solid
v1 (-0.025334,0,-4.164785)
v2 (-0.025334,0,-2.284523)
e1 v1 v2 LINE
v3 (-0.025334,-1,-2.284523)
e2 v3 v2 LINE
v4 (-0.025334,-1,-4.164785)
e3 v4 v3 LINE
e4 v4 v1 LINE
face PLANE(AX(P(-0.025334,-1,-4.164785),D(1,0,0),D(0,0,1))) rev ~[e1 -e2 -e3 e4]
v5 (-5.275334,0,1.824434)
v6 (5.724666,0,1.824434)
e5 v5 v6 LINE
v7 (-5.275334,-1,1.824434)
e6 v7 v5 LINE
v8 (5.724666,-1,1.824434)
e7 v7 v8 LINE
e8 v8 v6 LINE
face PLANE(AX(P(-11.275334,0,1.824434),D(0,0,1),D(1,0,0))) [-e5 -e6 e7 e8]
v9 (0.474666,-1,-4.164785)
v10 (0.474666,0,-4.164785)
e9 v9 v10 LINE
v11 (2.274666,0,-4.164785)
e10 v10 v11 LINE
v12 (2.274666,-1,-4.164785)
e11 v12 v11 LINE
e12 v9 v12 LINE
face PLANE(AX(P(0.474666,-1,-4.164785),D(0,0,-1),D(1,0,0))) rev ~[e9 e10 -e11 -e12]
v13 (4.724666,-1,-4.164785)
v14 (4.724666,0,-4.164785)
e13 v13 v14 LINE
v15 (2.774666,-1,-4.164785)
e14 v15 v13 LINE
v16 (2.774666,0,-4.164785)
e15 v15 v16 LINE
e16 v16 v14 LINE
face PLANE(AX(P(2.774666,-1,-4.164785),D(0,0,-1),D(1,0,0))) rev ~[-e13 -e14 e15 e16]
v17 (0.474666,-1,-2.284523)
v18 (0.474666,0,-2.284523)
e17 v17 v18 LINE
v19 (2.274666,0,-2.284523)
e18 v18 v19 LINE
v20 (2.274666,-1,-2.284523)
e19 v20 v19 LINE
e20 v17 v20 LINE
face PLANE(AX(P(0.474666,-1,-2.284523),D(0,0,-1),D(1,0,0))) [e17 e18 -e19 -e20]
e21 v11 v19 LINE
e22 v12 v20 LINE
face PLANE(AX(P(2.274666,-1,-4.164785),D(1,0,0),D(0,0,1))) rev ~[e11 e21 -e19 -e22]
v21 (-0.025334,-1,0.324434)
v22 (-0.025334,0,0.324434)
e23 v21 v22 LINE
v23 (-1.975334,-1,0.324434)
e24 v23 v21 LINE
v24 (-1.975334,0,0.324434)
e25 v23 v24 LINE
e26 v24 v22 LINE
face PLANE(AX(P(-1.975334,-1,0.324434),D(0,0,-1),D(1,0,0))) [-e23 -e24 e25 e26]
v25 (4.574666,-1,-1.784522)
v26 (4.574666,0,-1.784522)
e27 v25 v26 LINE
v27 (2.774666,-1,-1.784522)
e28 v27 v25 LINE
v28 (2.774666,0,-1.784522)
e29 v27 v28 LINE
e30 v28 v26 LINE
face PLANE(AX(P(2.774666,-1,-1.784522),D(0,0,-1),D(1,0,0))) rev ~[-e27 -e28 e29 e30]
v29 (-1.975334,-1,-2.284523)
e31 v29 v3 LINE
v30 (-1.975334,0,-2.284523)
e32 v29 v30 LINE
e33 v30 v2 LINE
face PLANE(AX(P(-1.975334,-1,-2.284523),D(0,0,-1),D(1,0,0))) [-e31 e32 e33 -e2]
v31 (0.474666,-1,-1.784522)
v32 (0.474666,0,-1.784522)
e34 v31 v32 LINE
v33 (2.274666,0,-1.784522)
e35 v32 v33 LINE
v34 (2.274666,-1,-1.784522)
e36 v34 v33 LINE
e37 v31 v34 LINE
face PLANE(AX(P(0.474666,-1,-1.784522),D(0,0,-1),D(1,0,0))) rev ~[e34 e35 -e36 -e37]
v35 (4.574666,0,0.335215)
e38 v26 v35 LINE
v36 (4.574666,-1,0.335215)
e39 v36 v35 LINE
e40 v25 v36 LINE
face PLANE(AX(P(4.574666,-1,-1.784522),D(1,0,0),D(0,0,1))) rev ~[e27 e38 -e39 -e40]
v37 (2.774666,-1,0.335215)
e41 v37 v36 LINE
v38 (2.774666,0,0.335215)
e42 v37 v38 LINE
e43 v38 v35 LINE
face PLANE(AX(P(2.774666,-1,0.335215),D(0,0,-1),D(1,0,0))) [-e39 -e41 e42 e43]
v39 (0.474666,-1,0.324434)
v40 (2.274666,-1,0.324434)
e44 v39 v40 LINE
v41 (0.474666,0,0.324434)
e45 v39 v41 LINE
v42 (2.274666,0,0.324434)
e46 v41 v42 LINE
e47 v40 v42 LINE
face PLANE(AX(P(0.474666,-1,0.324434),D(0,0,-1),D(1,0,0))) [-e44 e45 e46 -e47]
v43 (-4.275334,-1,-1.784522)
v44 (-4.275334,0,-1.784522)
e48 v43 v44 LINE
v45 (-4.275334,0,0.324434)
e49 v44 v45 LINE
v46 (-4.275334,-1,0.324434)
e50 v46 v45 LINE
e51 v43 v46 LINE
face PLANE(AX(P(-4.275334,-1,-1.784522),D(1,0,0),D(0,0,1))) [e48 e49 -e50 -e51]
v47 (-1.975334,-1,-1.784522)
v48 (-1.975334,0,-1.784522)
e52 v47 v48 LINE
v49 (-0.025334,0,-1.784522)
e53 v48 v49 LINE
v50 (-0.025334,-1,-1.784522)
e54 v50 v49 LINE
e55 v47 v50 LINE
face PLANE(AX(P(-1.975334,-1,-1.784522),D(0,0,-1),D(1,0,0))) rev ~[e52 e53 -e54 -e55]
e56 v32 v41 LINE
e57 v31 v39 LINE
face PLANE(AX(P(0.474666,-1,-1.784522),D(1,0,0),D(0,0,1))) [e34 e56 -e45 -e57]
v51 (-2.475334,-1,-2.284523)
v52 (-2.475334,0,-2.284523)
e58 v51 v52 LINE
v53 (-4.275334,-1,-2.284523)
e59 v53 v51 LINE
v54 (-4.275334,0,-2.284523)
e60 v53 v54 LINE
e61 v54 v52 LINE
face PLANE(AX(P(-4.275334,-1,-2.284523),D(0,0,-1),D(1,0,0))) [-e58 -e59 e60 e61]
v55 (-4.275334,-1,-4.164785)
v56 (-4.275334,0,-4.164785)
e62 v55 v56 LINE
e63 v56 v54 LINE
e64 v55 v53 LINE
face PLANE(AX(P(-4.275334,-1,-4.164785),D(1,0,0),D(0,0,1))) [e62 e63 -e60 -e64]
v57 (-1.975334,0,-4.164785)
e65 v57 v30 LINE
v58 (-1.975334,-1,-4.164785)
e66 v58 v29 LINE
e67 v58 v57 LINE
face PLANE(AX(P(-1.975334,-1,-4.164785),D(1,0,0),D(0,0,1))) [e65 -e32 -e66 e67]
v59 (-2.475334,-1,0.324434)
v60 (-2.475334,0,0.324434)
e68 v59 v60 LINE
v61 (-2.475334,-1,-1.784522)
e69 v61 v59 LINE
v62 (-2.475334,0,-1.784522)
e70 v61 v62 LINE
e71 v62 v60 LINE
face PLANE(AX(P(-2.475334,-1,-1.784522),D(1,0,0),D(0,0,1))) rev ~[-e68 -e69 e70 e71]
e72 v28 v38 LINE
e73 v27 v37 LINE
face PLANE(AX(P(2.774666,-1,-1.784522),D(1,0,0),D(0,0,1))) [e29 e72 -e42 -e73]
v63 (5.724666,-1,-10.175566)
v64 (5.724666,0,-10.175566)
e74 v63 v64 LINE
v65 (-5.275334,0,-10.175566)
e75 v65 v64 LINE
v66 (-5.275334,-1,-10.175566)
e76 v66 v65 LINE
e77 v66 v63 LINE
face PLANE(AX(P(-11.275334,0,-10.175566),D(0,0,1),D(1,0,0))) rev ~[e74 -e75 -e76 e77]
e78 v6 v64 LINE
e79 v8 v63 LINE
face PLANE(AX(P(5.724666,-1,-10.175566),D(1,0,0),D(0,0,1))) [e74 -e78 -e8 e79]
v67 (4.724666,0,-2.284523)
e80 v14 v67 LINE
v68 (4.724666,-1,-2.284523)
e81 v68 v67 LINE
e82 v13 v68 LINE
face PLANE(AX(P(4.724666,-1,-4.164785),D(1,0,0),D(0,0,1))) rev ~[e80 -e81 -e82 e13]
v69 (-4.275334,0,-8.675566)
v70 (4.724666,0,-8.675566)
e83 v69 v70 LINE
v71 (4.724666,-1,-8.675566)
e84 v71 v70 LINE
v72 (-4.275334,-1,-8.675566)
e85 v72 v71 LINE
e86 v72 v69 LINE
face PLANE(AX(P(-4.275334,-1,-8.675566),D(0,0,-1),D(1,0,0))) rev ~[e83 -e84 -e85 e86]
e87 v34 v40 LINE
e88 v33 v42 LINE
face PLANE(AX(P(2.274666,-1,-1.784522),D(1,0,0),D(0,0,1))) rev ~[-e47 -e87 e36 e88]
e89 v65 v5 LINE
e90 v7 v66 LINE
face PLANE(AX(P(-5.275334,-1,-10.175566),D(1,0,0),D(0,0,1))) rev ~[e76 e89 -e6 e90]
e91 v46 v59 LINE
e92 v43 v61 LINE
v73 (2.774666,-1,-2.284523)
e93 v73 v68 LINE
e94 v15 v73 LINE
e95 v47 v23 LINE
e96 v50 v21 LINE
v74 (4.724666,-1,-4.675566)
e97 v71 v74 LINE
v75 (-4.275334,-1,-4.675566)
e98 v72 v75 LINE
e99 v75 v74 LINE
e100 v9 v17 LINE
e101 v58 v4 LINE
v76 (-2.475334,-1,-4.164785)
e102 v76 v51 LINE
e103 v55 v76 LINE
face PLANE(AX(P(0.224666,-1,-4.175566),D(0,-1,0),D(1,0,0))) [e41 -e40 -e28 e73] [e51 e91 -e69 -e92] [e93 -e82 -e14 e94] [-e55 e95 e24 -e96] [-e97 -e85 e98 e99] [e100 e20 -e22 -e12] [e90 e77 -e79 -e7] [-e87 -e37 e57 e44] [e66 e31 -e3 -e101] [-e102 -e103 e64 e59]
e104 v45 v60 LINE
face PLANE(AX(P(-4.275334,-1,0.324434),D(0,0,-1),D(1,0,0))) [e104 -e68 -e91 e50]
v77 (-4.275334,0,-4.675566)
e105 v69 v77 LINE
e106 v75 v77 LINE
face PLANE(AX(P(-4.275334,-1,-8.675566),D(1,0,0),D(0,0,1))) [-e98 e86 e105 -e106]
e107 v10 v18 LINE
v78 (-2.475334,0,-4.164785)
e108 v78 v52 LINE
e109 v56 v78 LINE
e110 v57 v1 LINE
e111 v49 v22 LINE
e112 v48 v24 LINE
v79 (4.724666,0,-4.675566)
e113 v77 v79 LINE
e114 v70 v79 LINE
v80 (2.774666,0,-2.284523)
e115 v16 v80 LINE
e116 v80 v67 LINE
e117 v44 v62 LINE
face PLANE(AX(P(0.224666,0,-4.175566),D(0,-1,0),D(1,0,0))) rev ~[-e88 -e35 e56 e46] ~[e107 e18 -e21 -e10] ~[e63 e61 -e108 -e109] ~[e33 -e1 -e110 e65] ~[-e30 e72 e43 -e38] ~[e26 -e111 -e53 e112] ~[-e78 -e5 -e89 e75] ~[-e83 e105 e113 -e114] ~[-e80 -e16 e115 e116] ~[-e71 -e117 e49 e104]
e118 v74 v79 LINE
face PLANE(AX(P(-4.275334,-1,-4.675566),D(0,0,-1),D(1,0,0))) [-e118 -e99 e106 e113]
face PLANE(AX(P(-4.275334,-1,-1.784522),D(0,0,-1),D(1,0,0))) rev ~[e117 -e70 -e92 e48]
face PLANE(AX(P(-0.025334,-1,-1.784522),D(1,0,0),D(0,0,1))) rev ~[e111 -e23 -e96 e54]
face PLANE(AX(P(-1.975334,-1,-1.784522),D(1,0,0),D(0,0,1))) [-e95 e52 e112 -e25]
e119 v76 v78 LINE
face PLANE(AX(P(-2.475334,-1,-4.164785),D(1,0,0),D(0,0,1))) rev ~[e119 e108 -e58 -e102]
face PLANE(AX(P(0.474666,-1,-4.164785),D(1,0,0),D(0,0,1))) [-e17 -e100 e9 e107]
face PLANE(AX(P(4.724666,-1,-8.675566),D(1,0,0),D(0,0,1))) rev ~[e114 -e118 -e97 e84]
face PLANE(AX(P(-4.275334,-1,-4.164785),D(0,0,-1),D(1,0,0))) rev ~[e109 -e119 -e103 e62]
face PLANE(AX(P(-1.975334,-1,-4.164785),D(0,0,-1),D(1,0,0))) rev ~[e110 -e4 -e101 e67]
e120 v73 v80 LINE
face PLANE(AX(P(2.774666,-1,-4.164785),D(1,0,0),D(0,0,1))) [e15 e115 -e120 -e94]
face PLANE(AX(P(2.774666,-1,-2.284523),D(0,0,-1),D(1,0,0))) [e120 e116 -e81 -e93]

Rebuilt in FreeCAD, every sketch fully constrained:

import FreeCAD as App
import Part
import Sketcher

V = App.Vector


def add_polygon(sketch, points):
    """Adds a closed chain of lines whose ends are joined by coincident constraints."""
    first, n = sketch.GeometryCount, len(points)
    for a, b in zip(points, points[1:] + points[:1]):
        sketch.addGeometry(Part.LineSegment(App.Vector(*a, 0), App.Vector(*b, 0)), False)
    for i in range(n):
        sketch.addConstraint(Sketcher.Constraint("Coincident", first + i, 2, first + (i + 1) % n, 1))

doc = App.newDocument("Part")
body = doc.addObject("PartDesign::Body", "Body")

# Sketch on XZ plane
sketch1 = body.newObject("Sketcher::SketchObject", "Sketch")
sketch1.AttachmentSupport = (doc.getObject("XZ_Plane"), [""])
sketch1.MapMode = "FlatFace"
add_polygon(sketch1, [(-11, 2), (-11, -10), (12, -10), (12, 2)])  # lines 0-3
sketch1.addConstraint(Sketcher.Constraint("Vertical", 0))
sketch1.addConstraint(Sketcher.Constraint("Horizontal", 1))
sketch1.addConstraint(Sketcher.Constraint("Vertical", 2))
sketch1.addConstraint(Sketcher.Constraint("Horizontal", 3))
sketch1.addConstraint(Sketcher.Constraint("DistanceX", 1, 1, 1, 2, 23.0))
sketch1.addConstraint(Sketcher.Constraint("DistanceY", 0, 2, 0, 1, 12.0))
sketch1.addConstraint(Sketcher.Constraint("DistanceX", 0, 2, -1, 1, 11.275334))
sketch1.addConstraint(Sketcher.Constraint("DistanceY", 0, 2, -1, 1, 10.175566))
pad1 = body.newObject("PartDesign::Pad", "Pad")
pad1.Profile = sketch1
pad1.Length = 1

# Sketch on XZ plane
sketch2 = body.newObject("Sketcher::SketchObject", "Sketch001")
sketch2.AttachmentSupport = (doc.getObject("XZ_Plane"), [""])
sketch2.MapMode = "FlatFace"
sketch2.AttachmentOffset = App.Placement(V(0, 0, 1), App.Rotation())
add_polygon(sketch2, [(-9.3, -4.7), (-9.3, -8.7), (-5.3, -8.7), (-5.3, -4.7)])  # lines 0-3
add_polygon(sketch2, [(5.7, -4.7), (5.7, -8.7), (9.7, -8.7), (9.7, -4.7)])  # lines 4-7
add_polygon(sketch2, [(-4.3, -4.7), (-4.3, -8.7), (4.7, -8.7), (4.7, -4.7)])  # lines 8-11
add_polygon(sketch2, [(-9.3, 0.3), (-9.3, -1.8), (-7.5, -1.8), (-7.5, 0.3)])  # lines 12-15
add_polygon(sketch2, [(-7, 0.3), (-7, -1.8), (-5.3, -1.8), (-5.3, 0.3)])  # lines 16-19
add_polygon(sketch2, [(-9.3, -2.3), (-9.3, -4.2), (-7.5, -4.2), (-7.5, -2.3)])  # lines 20-23
add_polygon(sketch2, [(-7, -2.3), (-7, -4.2), (-5.3, -4.2), (-5.3, -2.3)])  # lines 24-27
add_polygon(sketch2, [(-4.3, 0.3), (-4.3, -1.8), (-2.5, -1.8), (-2.5, 0.3)])  # lines 28-31
add_polygon(sketch2, [(-2, 0.3), (-2, -1.8), (0, -1.8), (0, 0.3)])  # lines 32-35
add_polygon(sketch2, [(-4.3, -2.3), (-4.3, -4.2), (-2.5, -4.2), (-2.5, -2.3)])  # lines 36-39
add_polygon(sketch2, [(-2, -2.3), (-2, -4.2), (0, -4.2), (0, -2.3)])  # lines 40-43
add_polygon(sketch2, [(0.5, 0.3), (0.5, -1.8), (2.3, -1.8), (2.3, 0.3)])  # lines 44-47
add_polygon(sketch2, [(2.8, 0.3), (2.8, -1.8), (4.6, -1.8), (4.6, 0.3)])  # lines 48-51
add_polygon(sketch2, [(0.5, -2.3), (0.5, -4.2), (2.3, -4.2), (2.3, -2.3)])  # lines 52-55
add_polygon(sketch2, [(2.8, -2.3), (2.8, -4.2), (4.7, -4.2), (4.7, -2.3)])  # lines 56-59
add_polygon(sketch2, [(5.7, 0.3), (5.7, -1.8), (7.5, -1.8), (7.5, 0.3)])  # lines 60-63
add_polygon(sketch2, [(8, 0.3), (8, -1.8), (9.7, -1.8), (9.7, 0.3)])  # lines 64-67
add_polygon(sketch2, [(5.7, -2.3), (5.7, -4.2), (7.5, -4.2), (7.5, -2.3)])  # lines 68-71
add_polygon(sketch2, [(8, -2.3), (8, -4.2), (9.7, -4.2), (9.7, -2.3)])  # lines 72-75
sketch2.addConstraint(Sketcher.Constraint("Vertical", 0))
sketch2.addConstraint(Sketcher.Constraint("Horizontal", 1))
sketch2.addConstraint(Sketcher.Constraint("Vertical", 2))
sketch2.addConstraint(Sketcher.Constraint("Horizontal", 3))
sketch2.addConstraint(Sketcher.Constraint("Vertical", 4))
sketch2.addConstraint(Sketcher.Constraint("Horizontal", 5))
sketch2.addConstraint(Sketcher.Constraint("Vertical", 6))
sketch2.addConstraint(Sketcher.Constraint("Horizontal", 7))
sketch2.addConstraint(Sketcher.Constraint("Vertical", 8))
sketch2.addConstraint(Sketcher.Constraint("Horizontal", 9))
sketch2.addConstraint(Sketcher.Constraint("Vertical", 10))
sketch2.addConstraint(Sketcher.Constraint("Horizontal", 11))
sketch2.addConstraint(Sketcher.Constraint("Vertical", 12))
sketch2.addConstraint(Sketcher.Constraint("Horizontal", 13))
sketch2.addConstraint(Sketcher.Constraint("Vertical", 14))
sketch2.addConstraint(Sketcher.Constraint("Horizontal", 15))
sketch2.addConstraint(Sketcher.Constraint("Vertical", 16))
sketch2.addConstraint(Sketcher.Constraint("Horizontal", 17))
sketch2.addConstraint(Sketcher.Constraint("Vertical", 18))
sketch2.addConstraint(Sketcher.Constraint("Horizontal", 19))
sketch2.addConstraint(Sketcher.Constraint("Vertical", 20))
sketch2.addConstraint(Sketcher.Constraint("Horizontal", 21))
sketch2.addConstraint(Sketcher.Constraint("Vertical", 22))
sketch2.addConstraint(Sketcher.Constraint("Horizontal", 23))
sketch2.addConstraint(Sketcher.Constraint("Vertical", 24))
sketch2.addConstraint(Sketcher.Constraint("Horizontal", 25))
sketch2.addConstraint(Sketcher.Constraint("Vertical", 26))
sketch2.addConstraint(Sketcher.Constraint("Horizontal", 27))
sketch2.addConstraint(Sketcher.Constraint("Vertical", 28))
sketch2.addConstraint(Sketcher.Constraint("Horizontal", 29))
sketch2.addConstraint(Sketcher.Constraint("Vertical", 30))
sketch2.addConstraint(Sketcher.Constraint("Horizontal", 31))
sketch2.addConstraint(Sketcher.Constraint("Vertical", 32))
sketch2.addConstraint(Sketcher.Constraint("Horizontal", 33))
sketch2.addConstraint(Sketcher.Constraint("Vertical", 34))
sketch2.addConstraint(Sketcher.Constraint("Horizontal", 35))
sketch2.addConstraint(Sketcher.Constraint("Vertical", 36))
sketch2.addConstraint(Sketcher.Constraint("Horizontal", 37))
sketch2.addConstraint(Sketcher.Constraint("Vertical", 38))
sketch2.addConstraint(Sketcher.Constraint("Horizontal", 39))
sketch2.addConstraint(Sketcher.Constraint("Vertical", 40))
sketch2.addConstraint(Sketcher.Constraint("Horizontal", 41))
sketch2.addConstraint(Sketcher.Constraint("Vertical", 42))
sketch2.addConstraint(Sketcher.Constraint("Horizontal", 43))
sketch2.addConstraint(Sketcher.Constraint("Vertical", 44))
sketch2.addConstraint(Sketcher.Constraint("Horizontal", 45))
sketch2.addConstraint(Sketcher.Constraint("Vertical", 46))
sketch2.addConstraint(Sketcher.Constraint("Horizontal", 47))
sketch2.addConstraint(Sketcher.Constraint("Vertical", 48))
sketch2.addConstraint(Sketcher.Constraint("Horizontal", 49))
sketch2.addConstraint(Sketcher.Constraint("Vertical", 50))
sketch2.addConstraint(Sketcher.Constraint("Horizontal", 51))
sketch2.addConstraint(Sketcher.Constraint("Vertical", 52))
sketch2.addConstraint(Sketcher.Constraint("Horizontal", 53))
sketch2.addConstraint(Sketcher.Constraint("Vertical", 54))
sketch2.addConstraint(Sketcher.Constraint("Horizontal", 55))
sketch2.addConstraint(Sketcher.Constraint("Vertical", 56))
sketch2.addConstraint(Sketcher.Constraint("Horizontal", 57))
sketch2.addConstraint(Sketcher.Constraint("Vertical", 58))
sketch2.addConstraint(Sketcher.Constraint("Horizontal", 59))
sketch2.addConstraint(Sketcher.Constraint("Vertical", 60))
sketch2.addConstraint(Sketcher.Constraint("Horizontal", 61))
sketch2.addConstraint(Sketcher.Constraint("Vertical", 62))
sketch2.addConstraint(Sketcher.Constraint("Horizontal", 63))
sketch2.addConstraint(Sketcher.Constraint("Vertical", 64))
sketch2.addConstraint(Sketcher.Constraint("Horizontal", 65))
sketch2.addConstraint(Sketcher.Constraint("Vertical", 66))
sketch2.addConstraint(Sketcher.Constraint("Horizontal", 67))
sketch2.addConstraint(Sketcher.Constraint("Vertical", 68))
sketch2.addConstraint(Sketcher.Constraint("Horizontal", 69))
sketch2.addConstraint(Sketcher.Constraint("Vertical", 70))
sketch2.addConstraint(Sketcher.Constraint("Horizontal", 71))
sketch2.addConstraint(Sketcher.Constraint("Vertical", 72))
sketch2.addConstraint(Sketcher.Constraint("Horizontal", 73))
sketch2.addConstraint(Sketcher.Constraint("Vertical", 74))
sketch2.addConstraint(Sketcher.Constraint("Horizontal", 75))
sketch2.addConstraint(Sketcher.Constraint("Horizontal", 1, 2, 4, 2))
sketch2.addConstraint(Sketcher.Constraint("Horizontal", 3, 2, 6, 2))
sketch2.addConstraint(Sketcher.Constraint("Horizontal", 5, 2, 8, 2))
sketch2.addConstraint(Sketcher.Constraint("Horizontal", 7, 2, 10, 2))
sketch2.addConstraint(Sketcher.Constraint("Horizontal", 13, 2, 16, 2))
sketch2.addConstraint(Sketcher.Constraint("Horizontal", 15, 2, 18, 2))
sketch2.addConstraint(Sketcher.Constraint("Horizontal", 21, 2, 24, 2))
sketch2.addConstraint(Sketcher.Constraint("Horizontal", 23, 2, 26, 2))
sketch2.addConstraint(Sketcher.Constraint("Horizontal", 19, 2, 30, 2))
sketch2.addConstraint(Sketcher.Constraint("Horizontal", 29, 2, 32, 2))
sketch2.addConstraint(Sketcher.Constraint("Horizontal", 31, 2, 34, 2))
sketch2.addConstraint(Sketcher.Constraint("Horizontal", 37, 2, 40, 2))
sketch2.addConstraint(Sketcher.Constraint("Horizontal", 39, 2, 42, 2))
sketch2.addConstraint(Sketcher.Constraint("Horizontal", 33, 2, 44, 2))
sketch2.addConstraint(Sketcher.Constraint("Horizontal", 35, 2, 46, 2))
sketch2.addConstraint(Sketcher.Constraint("Horizontal", 45, 2, 48, 2))
sketch2.addConstraint(Sketcher.Constraint("Horizontal", 41, 2, 52, 2))
sketch2.addConstraint(Sketcher.Constraint("Horizontal", 43, 2, 54, 2))
sketch2.addConstraint(Sketcher.Constraint("Horizontal", 53, 2, 56, 2))
sketch2.addConstraint(Sketcher.Constraint("Horizontal", 55, 2, 58, 2))
sketch2.addConstraint(Sketcher.Constraint("Horizontal", 61, 2, 64, 2))
sketch2.addConstraint(Sketcher.Constraint("Horizontal", 63, 2, 66, 2))
sketch2.addConstraint(Sketcher.Constraint("Horizontal", 69, 2, 72, 2))
sketch2.addConstraint(Sketcher.Constraint("Horizontal", 71, 2, 74, 2))
sketch2.addConstraint(Sketcher.Constraint("Vertical", 3, 2, 12, 2))
sketch2.addConstraint(Sketcher.Constraint("Vertical", 2, 2, 17, 2))
sketch2.addConstraint(Sketcher.Constraint("Vertical", 15, 2, 20, 2))
sketch2.addConstraint(Sketcher.Constraint("Vertical", 14, 2, 21, 2))
sketch2.addConstraint(Sketcher.Constraint("Vertical", 19, 2, 24, 2))
sketch2.addConstraint(Sketcher.Constraint("Vertical", 18, 2, 25, 2))
sketch2.addConstraint(Sketcher.Constraint("Vertical", 11, 2, 28, 2))
sketch2.addConstraint(Sketcher.Constraint("Vertical", 31, 2, 36, 2))
sketch2.addConstraint(Sketcher.Constraint("Vertical", 30, 2, 37, 2))
sketch2.addConstraint(Sketcher.Constraint("Vertical", 35, 2, 40, 2))
sketch2.addConstraint(Sketcher.Constraint("Vertical", 34, 2, 41, 2))
sketch2.addConstraint(Sketcher.Constraint("Vertical", 47, 2, 52, 2))
sketch2.addConstraint(Sketcher.Constraint("Vertical", 46, 2, 53, 2))
sketch2.addConstraint(Sketcher.Constraint("Vertical", 51, 2, 56, 2))
sketch2.addConstraint(Sketcher.Constraint("Vertical", 10, 2, 57, 2))
sketch2.addConstraint(Sketcher.Constraint("Vertical", 7, 2, 60, 2))
sketch2.addConstraint(Sketcher.Constraint("Vertical", 6, 2, 65, 2))
sketch2.addConstraint(Sketcher.Constraint("Vertical", 63, 2, 68, 2))
sketch2.addConstraint(Sketcher.Constraint("Vertical", 62, 2, 69, 2))
sketch2.addConstraint(Sketcher.Constraint("Vertical", 67, 2, 72, 2))
sketch2.addConstraint(Sketcher.Constraint("Vertical", 66, 2, 73, 2))
sketch2.addConstraint(Sketcher.Constraint("Equal", 3, 5))
sketch2.addConstraint(Sketcher.Constraint("Equal", 23, 29))
sketch2.addConstraint(Sketcher.Constraint("Equal", 39, 45))
sketch2.addConstraint(Sketcher.Constraint("Equal", 47, 49))
sketch2.addConstraint(Sketcher.Constraint("Equal", 43, 57))
sketch2.addConstraint(Sketcher.Constraint("Equal", 55, 61))
sketch2.addConstraint(Sketcher.Constraint("Equal", 27, 65))
sketch2.addConstraint(Sketcher.Constraint("Equal", 7, 0))
sketch2.addConstraint(Sketcher.Constraint("Equal", 26, 36))
sketch2.addConstraint(Sketcher.Constraint("Equal", 18, 48))
sketch2.addConstraint(Sketcher.Constraint("Equal", 50, 60))
sketch2.addConstraint(Sketcher.Constraint("Equal", 58, 68))
sketch2.addConstraint(Sketcher.Constraint("DistanceX", 1, 1, 1, 2, 4.0))
sketch2.addConstraint(Sketcher.Constraint("DistanceX", 9, 1, 9, 2, 9.0))
sketch2.addConstraint(Sketcher.Constraint("DistanceX", 13, 1, 13, 2, 1.8))
sketch2.addConstraint(Sketcher.Constraint("DistanceX", 17, 1, 17, 2, 1.7))
sketch2.addConstraint(Sketcher.Constraint("DistanceX", 33, 1, 33, 2, 1.95))
sketch2.addConstraint(Sketcher.Constraint("DistanceY", 68, 2, 68, 1, 1.880262))
sketch2.addConstraint(Sketcher.Constraint("DistanceY", 12, 2, 12, 1, 2.119738))
sketch2.addConstraint(Sketcher.Constraint("DistanceY", 28, 2, 28, 1, 2.108956))
sketch2.addConstraint(Sketcher.Constraint("DistanceY", 28, 2, -1, 1, 1.784522))
sketch2.addConstraint(Sketcher.Constraint("DistanceX", 0, 2, -1, 1, 9.275334))
sketch2.addConstraint(Sketcher.Constraint("DistanceY", 0, 2, -1, 1, 8.675566))
sketch2.addConstraint(Sketcher.Constraint("DistanceX", -1, 1, 4, 2, 5.724666))
sketch2.addConstraint(Sketcher.Constraint("DistanceX", 8, 2, -1, 1, 4.275334))
sketch2.addConstraint(Sketcher.Constraint("DistanceY", 20, 2, -1, 1, 4.175566))
sketch2.addConstraint(Sketcher.Constraint("DistanceX", 32, 2, -1, 1, 1.975334))
sketch2.addConstraint(Sketcher.Constraint("DistanceY", 36, 2, -1, 1, 4.164785))
sketch2.addConstraint(Sketcher.Constraint("DistanceX", -1, 1, 44, 2, 0.474666))
sketch2.addConstraint(Sketcher.Constraint("DistanceY", 60, 2, -1, 1, 1.792093))
sketch2.addConstraint(Sketcher.Constraint("DistanceY", 68, 2, -1, 1, 4.172355))
pocket1 = body.newObject("PartDesign::Pocket", "Pocket")
pocket1.Profile = sketch2
pocket1.Length = 5

# Sketch on XZ plane
sketch3 = body.newObject("Sketcher::SketchObject", "Sketch002")
sketch3.AttachmentSupport = (doc.getObject("XZ_Plane"), [""])
sketch3.MapMode = "FlatFace"
sketch3.AttachmentOffset = App.Placement(V(0, 0, 1), App.Rotation())
add_polygon(sketch3, [(-11, 2), (-11, -10), (-5, -10), (-5, 2)])  # lines 0-3
add_polygon(sketch3, [(6, 2), (6, -10), (12, -10), (12, 2)])  # lines 4-7
sketch3.addConstraint(Sketcher.Constraint("Vertical", 0))
sketch3.addConstraint(Sketcher.Constraint("Horizontal", 1))
sketch3.addConstraint(Sketcher.Constraint("Vertical", 2))
sketch3.addConstraint(Sketcher.Constraint("Horizontal", 3))
sketch3.addConstraint(Sketcher.Constraint("Vertical", 4))
sketch3.addConstraint(Sketcher.Constraint("Horizontal", 5))
sketch3.addConstraint(Sketcher.Constraint("Vertical", 6))
sketch3.addConstraint(Sketcher.Constraint("Horizontal", 7))
sketch3.addConstraint(Sketcher.Constraint("Horizontal", 1, 2, 4, 2))
sketch3.addConstraint(Sketcher.Constraint("Horizontal", 3, 2, 6, 2))
sketch3.addConstraint(Sketcher.Constraint("Equal", 3, 5))
sketch3.addConstraint(Sketcher.Constraint("DistanceX", 1, 1, 1, 2, 6.0))
sketch3.addConstraint(Sketcher.Constraint("DistanceY", 0, 2, 0, 1, 12.0))
sketch3.addConstraint(Sketcher.Constraint("DistanceX", 1, 2, 4, 2, 11.0))
sketch3.addConstraint(Sketcher.Constraint("DistanceX", 0, 2, -1, 1, 11.275334))
sketch3.addConstraint(Sketcher.Constraint("DistanceY", 0, 2, -1, 1, 10.175566))
pocket2 = body.newObject("PartDesign::Pocket", "Pocket001")
pocket2.Profile = sketch3
pocket2.Length = 5

doc.recompute()
